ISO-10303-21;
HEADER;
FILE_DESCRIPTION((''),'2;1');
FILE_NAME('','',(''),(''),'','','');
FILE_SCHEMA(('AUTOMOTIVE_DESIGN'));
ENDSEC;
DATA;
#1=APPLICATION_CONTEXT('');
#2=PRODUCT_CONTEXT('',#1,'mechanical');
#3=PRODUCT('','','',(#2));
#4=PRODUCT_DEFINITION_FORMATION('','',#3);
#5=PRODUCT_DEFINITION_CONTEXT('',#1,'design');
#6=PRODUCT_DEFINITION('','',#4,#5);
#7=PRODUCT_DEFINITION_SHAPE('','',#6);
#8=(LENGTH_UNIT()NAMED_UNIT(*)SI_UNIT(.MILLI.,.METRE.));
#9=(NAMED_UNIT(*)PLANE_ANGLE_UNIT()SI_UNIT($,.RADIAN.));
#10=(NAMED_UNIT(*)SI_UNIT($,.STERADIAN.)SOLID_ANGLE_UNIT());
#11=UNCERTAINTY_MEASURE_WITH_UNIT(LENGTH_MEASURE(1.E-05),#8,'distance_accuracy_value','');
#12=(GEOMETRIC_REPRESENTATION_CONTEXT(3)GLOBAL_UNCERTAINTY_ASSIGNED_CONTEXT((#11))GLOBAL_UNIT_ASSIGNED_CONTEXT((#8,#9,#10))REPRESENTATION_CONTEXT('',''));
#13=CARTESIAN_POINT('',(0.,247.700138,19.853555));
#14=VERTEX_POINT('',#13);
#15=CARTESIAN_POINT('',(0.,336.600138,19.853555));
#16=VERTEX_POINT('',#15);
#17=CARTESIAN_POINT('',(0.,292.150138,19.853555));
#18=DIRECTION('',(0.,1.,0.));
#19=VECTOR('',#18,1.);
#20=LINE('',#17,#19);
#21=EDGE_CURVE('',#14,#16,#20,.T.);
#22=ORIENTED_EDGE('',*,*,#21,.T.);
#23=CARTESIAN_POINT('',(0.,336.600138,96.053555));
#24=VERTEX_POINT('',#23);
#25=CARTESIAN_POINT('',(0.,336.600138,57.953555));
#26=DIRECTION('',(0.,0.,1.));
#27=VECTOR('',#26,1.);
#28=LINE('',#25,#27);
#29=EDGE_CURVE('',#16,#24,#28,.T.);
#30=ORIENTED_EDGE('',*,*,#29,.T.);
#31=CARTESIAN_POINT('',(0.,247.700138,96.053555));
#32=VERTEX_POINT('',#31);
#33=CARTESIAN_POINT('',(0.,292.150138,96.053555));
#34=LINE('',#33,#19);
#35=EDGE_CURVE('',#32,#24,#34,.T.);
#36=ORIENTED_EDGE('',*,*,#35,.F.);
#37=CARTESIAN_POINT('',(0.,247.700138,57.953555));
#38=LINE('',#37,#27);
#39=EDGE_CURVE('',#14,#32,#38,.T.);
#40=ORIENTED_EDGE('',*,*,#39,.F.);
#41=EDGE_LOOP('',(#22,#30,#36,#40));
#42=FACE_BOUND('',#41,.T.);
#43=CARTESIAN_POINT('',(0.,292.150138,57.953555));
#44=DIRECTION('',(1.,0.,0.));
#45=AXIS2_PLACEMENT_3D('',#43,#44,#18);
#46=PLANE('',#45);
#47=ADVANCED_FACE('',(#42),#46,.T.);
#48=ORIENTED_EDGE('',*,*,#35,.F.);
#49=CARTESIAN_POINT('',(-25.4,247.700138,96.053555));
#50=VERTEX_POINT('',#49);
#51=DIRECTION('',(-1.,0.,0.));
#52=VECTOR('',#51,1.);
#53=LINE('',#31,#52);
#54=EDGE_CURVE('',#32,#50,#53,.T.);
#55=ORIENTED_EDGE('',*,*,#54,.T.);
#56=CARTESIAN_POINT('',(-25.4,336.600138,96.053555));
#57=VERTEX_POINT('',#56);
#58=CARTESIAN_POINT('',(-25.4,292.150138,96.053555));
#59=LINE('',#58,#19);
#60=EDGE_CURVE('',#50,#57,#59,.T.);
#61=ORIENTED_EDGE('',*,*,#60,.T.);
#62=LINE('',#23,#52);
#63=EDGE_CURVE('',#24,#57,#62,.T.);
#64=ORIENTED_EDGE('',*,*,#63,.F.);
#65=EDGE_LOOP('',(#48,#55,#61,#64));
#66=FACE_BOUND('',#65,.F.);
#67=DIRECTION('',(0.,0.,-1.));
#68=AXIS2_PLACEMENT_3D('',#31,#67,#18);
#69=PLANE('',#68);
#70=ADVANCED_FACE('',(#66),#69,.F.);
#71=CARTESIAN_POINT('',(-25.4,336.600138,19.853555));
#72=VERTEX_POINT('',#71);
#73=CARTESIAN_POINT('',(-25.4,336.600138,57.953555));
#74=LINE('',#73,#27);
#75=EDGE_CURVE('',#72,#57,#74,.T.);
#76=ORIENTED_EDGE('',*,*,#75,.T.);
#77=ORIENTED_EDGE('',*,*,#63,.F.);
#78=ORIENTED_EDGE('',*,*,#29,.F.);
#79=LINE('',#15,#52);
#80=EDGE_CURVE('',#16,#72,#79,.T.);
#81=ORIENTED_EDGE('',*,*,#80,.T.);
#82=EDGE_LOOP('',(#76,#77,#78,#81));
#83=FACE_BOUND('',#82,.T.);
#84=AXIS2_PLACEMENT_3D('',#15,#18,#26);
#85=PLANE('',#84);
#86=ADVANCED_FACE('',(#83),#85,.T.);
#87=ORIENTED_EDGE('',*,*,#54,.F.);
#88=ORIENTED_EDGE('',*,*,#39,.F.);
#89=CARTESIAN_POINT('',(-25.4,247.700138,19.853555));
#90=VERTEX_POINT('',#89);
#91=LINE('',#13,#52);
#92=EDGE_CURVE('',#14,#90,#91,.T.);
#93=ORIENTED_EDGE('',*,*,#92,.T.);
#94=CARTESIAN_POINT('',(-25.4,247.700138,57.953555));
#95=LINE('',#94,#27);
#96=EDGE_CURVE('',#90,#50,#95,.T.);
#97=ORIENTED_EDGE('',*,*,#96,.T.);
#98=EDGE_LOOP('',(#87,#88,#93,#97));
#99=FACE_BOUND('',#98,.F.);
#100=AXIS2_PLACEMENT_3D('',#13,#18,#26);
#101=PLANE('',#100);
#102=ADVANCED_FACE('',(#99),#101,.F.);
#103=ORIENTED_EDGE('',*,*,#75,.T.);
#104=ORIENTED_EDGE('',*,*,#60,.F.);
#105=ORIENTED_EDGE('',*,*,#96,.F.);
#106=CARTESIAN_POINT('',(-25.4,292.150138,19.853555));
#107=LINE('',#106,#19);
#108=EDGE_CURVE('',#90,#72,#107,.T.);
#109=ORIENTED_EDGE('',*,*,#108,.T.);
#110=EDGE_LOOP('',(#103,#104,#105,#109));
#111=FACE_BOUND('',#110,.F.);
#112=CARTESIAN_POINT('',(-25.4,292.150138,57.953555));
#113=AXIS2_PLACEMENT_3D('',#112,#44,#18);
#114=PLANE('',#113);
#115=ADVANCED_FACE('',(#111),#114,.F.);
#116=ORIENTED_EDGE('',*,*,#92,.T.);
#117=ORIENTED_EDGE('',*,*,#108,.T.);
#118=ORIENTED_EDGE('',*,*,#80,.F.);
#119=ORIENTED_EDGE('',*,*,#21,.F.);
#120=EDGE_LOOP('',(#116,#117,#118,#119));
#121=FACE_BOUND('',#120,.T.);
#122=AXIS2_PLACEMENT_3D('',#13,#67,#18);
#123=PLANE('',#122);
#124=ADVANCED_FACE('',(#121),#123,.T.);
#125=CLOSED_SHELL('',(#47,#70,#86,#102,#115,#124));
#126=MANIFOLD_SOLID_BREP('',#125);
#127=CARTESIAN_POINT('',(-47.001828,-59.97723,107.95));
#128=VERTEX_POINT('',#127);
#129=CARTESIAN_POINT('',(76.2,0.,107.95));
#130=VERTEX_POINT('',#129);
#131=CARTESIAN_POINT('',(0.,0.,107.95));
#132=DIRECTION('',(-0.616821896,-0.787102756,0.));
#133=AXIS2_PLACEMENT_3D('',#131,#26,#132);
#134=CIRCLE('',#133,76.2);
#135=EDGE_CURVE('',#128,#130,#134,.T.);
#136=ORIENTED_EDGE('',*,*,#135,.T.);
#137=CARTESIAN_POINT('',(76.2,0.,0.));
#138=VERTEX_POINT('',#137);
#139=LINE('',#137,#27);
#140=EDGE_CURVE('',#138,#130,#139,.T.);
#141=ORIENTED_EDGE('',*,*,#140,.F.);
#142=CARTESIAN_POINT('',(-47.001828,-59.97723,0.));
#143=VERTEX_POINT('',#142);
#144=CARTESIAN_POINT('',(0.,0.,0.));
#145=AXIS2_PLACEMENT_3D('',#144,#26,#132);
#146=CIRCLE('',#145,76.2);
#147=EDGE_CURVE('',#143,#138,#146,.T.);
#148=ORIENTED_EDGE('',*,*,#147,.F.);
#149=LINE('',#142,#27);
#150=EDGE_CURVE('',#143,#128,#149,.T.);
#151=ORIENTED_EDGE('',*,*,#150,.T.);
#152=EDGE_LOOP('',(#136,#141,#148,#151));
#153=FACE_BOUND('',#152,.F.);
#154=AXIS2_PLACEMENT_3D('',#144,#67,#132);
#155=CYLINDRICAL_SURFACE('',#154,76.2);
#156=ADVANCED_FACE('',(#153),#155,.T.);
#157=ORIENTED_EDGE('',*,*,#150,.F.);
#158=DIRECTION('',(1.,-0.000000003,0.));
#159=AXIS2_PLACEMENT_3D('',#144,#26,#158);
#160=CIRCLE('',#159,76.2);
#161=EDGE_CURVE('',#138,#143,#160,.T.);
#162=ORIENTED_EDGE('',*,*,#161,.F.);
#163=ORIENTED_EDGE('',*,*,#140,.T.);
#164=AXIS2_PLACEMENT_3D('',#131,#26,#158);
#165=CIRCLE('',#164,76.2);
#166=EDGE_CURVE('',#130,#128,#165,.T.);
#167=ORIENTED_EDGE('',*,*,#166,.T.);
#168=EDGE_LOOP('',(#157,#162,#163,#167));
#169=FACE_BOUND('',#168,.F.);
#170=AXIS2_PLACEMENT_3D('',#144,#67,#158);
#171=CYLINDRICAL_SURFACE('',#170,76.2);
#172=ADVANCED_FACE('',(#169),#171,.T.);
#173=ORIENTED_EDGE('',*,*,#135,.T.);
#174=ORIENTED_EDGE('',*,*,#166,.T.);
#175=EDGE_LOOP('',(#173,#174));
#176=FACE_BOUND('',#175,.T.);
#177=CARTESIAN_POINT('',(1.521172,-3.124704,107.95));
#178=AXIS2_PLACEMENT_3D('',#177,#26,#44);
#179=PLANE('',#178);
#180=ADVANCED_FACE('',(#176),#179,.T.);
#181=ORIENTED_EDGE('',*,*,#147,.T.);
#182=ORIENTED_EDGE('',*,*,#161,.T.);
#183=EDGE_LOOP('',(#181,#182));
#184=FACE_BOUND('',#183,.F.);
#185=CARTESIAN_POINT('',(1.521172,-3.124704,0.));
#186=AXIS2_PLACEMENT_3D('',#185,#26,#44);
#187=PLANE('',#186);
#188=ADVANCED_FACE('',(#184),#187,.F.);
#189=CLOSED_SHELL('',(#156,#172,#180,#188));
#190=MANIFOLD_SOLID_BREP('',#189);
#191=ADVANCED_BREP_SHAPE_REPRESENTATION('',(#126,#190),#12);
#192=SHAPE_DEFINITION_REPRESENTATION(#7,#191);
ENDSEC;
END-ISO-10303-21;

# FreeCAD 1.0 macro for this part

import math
import FreeCAD as App
import Part
import Sketcher
from FreeCAD import Vector
Q = App.Units.Quantity


def add_polygon(sketch, points):
    """Adds a closed chain of lines whose ends are joined by coincident constraints."""
    first, n = sketch.GeometryCount, len(points)
    for a, b in zip(points, points[1:] + points[:1]):
        sketch.addGeometry(Part.LineSegment(App.Vector(*a, 0), App.Vector(*b, 0)), False)
    for i in range(n):
        sketch.addConstraint(Sketcher.Constraint("Coincident", first + i, 2, first + (i + 1) % n, 1))

doc = App.newDocument("Part")
body = doc.addObject("PartDesign::Body", "Body")

# Sketch on XY plane
sketch1 = body.newObject("Sketcher::SketchObject", "Sketch")
sketch1.AttachmentSupport = (doc.getObject("XY_Plane"), [""])
sketch1.MapMode = "FlatFace"
sketch1.addGeometry([
    Part.ArcOfCircle(Part.Circle(Vector(0, 0, 0), Vector(0, 0, 1), 76), math.radians(-128), math.radians(0)),
    Part.ArcOfCircle(Part.Circle(Vector(0, 0, 0), Vector(0, 0, 1), 76), math.radians(0), math.radians(232)),
], False)
sketch1.addConstraint([
    Sketcher.Constraint("Tangent", 0, 1, 1, 2),
    Sketcher.Constraint("Coincident", 1, 1, 0, 2),
    Sketcher.Constraint("Coincident", 0, 3, -1, 1),
    Sketcher.Constraint("PointOnObject", 1, 1, -1),
    Sketcher.Constraint("Radius", 0, Q("3 in")),
    Sketcher.Constraint("DistanceY", 0, 1, -1, 1, Q("59.97723 mm")),
])
pad1 = body.newObject("PartDesign::Pad", "Pad")
pad1.Profile = sketch1
pad1.Length = Q("4.25 in")
body2 = doc.addObject("PartDesign::Body", "Body001")

# Sketch on YZ plane
sketch2 = body2.newObject("Sketcher::SketchObject", "Sketch001")
sketch2.AttachmentSupport = (doc.getObject("YZ_Plane001"), [""])
sketch2.MapMode = "FlatFace"
add_polygon(sketch2, [(248, 96), (248, 20), (337, 20), (337, 96)])  # lines 0-3
sketch2.addConstraint([
    Sketcher.Constraint("Vertical", 0),
    Sketcher.Constraint("Horizontal", 1),
    Sketcher.Constraint("Vertical", 2),
    Sketcher.Constraint("Horizontal", 3),
    Sketcher.Constraint("DistanceY", 0, 2, 0, 1, Q("3 in")),
    Sketcher.Constraint("DistanceX", 1, 1, 1, 2, Q("3.5 in")),
    Sketcher.Constraint("DistanceX", -1, 1, 0, 2, Q("247.700138 mm")),
    Sketcher.Constraint("DistanceY", -1, 1, 0, 2, Q("19.853555 mm")),
])
pad2 = body2.newObject("PartDesign::Pad", "Pad001")
pad2.Profile = sketch2
pad2.Length = Q("1 in")
pad2.Reversed = True

doc.recompute()
